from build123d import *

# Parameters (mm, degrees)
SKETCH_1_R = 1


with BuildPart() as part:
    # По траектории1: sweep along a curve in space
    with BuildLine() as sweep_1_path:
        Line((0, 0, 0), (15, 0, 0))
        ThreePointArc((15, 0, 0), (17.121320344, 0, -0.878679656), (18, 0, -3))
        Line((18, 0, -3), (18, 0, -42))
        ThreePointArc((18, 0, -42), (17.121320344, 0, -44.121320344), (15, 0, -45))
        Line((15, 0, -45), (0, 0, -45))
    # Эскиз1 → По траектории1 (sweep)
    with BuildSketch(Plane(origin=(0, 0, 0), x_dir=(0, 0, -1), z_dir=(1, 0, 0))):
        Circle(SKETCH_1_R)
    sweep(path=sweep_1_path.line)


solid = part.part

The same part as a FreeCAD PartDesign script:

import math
import FreeCAD as App
import Part
import Sketcher
from FreeCAD import Vector
Q = App.Units.Quantity

doc = App.newDocument("Part")
body = doc.addObject("PartDesign::Body", "Body")

sketch1 = body.newObject("Sketcher::SketchObject", "Sketch")
sketch1.AttachmentSupport = (doc.getObject("YZ_Plane"), [""])
sketch1.MapMode = "FlatFace"
sketch1.addGeometry(Part.Circle(Vector(0, 0, 0), Vector(0, 0, 1), 1), False)
sketch1.addConstraint([
    Sketcher.Constraint("Coincident", 0, 3, -1, 1),
    Sketcher.Constraint("Diameter", 0, Q("2 mm")),
])

sketch2 = body.newObject("Sketcher::SketchObject", "Sketch001")
sketch2.AttachmentSupport = (doc.getObject("XZ_Plane"), [""])
sketch2.MapMode = "FlatFace"
sketch2.addGeometry([
    Part.LineSegment(Vector(0, 0, 0), Vector(15, 0, 0)),
    Part.ArcOfCircle(Part.Circle(Vector(15, -3, 0), Vector(0, 0, 1), 3), math.radians(0), math.radians(90)),
    Part.LineSegment(Vector(18, -3, 0), Vector(18, -42, 0)),
    Part.ArcOfCircle(Part.Circle(Vector(15, -42, 0), Vector(0, 0, 1), 3), math.radians(-90), math.radians(0)),
    Part.LineSegment(Vector(15, -45, 0), Vector(0, -45, 0)),
], False)
sketch2.addConstraint([
    Sketcher.Constraint("Tangent", 0, 2, 1, 2),
    Sketcher.Constraint("Tangent", 1, 1, 2, 1),
    Sketcher.Constraint("Tangent", 2, 2, 3, 2),
    Sketcher.Constraint("Tangent", 3, 1, 4, 1),
    Sketcher.Constraint("Horizontal", 0),
    Sketcher.Constraint("Vertical", 2),
    Sketcher.Constraint("Horizontal", 4),
    Sketcher.Constraint("Coincident", 0, 1, -1, 1),
    Sketcher.Constraint("Equal", 1, 3),
    Sketcher.Constraint("PointOnObject", 4, 2, -2),
    Sketcher.Constraint("Radius", 1, Q("3 mm")),
    Sketcher.Constraint("DistanceX", 0, 1, 0, 2, Q("15 mm")),
    Sketcher.Constraint("DistanceY", 2, 2, 2, 1, Q("39 mm")),
])
doc.recompute()

additivepipe = body.newObject("PartDesign::AdditivePipe", "AdditivePipe")
additivepipe.Profile = sketch1
additivepipe.Spine = (sketch2, ["Edge1", "Edge2", "Edge3", "Edge4", "Edge5"])

doc.recompute()
